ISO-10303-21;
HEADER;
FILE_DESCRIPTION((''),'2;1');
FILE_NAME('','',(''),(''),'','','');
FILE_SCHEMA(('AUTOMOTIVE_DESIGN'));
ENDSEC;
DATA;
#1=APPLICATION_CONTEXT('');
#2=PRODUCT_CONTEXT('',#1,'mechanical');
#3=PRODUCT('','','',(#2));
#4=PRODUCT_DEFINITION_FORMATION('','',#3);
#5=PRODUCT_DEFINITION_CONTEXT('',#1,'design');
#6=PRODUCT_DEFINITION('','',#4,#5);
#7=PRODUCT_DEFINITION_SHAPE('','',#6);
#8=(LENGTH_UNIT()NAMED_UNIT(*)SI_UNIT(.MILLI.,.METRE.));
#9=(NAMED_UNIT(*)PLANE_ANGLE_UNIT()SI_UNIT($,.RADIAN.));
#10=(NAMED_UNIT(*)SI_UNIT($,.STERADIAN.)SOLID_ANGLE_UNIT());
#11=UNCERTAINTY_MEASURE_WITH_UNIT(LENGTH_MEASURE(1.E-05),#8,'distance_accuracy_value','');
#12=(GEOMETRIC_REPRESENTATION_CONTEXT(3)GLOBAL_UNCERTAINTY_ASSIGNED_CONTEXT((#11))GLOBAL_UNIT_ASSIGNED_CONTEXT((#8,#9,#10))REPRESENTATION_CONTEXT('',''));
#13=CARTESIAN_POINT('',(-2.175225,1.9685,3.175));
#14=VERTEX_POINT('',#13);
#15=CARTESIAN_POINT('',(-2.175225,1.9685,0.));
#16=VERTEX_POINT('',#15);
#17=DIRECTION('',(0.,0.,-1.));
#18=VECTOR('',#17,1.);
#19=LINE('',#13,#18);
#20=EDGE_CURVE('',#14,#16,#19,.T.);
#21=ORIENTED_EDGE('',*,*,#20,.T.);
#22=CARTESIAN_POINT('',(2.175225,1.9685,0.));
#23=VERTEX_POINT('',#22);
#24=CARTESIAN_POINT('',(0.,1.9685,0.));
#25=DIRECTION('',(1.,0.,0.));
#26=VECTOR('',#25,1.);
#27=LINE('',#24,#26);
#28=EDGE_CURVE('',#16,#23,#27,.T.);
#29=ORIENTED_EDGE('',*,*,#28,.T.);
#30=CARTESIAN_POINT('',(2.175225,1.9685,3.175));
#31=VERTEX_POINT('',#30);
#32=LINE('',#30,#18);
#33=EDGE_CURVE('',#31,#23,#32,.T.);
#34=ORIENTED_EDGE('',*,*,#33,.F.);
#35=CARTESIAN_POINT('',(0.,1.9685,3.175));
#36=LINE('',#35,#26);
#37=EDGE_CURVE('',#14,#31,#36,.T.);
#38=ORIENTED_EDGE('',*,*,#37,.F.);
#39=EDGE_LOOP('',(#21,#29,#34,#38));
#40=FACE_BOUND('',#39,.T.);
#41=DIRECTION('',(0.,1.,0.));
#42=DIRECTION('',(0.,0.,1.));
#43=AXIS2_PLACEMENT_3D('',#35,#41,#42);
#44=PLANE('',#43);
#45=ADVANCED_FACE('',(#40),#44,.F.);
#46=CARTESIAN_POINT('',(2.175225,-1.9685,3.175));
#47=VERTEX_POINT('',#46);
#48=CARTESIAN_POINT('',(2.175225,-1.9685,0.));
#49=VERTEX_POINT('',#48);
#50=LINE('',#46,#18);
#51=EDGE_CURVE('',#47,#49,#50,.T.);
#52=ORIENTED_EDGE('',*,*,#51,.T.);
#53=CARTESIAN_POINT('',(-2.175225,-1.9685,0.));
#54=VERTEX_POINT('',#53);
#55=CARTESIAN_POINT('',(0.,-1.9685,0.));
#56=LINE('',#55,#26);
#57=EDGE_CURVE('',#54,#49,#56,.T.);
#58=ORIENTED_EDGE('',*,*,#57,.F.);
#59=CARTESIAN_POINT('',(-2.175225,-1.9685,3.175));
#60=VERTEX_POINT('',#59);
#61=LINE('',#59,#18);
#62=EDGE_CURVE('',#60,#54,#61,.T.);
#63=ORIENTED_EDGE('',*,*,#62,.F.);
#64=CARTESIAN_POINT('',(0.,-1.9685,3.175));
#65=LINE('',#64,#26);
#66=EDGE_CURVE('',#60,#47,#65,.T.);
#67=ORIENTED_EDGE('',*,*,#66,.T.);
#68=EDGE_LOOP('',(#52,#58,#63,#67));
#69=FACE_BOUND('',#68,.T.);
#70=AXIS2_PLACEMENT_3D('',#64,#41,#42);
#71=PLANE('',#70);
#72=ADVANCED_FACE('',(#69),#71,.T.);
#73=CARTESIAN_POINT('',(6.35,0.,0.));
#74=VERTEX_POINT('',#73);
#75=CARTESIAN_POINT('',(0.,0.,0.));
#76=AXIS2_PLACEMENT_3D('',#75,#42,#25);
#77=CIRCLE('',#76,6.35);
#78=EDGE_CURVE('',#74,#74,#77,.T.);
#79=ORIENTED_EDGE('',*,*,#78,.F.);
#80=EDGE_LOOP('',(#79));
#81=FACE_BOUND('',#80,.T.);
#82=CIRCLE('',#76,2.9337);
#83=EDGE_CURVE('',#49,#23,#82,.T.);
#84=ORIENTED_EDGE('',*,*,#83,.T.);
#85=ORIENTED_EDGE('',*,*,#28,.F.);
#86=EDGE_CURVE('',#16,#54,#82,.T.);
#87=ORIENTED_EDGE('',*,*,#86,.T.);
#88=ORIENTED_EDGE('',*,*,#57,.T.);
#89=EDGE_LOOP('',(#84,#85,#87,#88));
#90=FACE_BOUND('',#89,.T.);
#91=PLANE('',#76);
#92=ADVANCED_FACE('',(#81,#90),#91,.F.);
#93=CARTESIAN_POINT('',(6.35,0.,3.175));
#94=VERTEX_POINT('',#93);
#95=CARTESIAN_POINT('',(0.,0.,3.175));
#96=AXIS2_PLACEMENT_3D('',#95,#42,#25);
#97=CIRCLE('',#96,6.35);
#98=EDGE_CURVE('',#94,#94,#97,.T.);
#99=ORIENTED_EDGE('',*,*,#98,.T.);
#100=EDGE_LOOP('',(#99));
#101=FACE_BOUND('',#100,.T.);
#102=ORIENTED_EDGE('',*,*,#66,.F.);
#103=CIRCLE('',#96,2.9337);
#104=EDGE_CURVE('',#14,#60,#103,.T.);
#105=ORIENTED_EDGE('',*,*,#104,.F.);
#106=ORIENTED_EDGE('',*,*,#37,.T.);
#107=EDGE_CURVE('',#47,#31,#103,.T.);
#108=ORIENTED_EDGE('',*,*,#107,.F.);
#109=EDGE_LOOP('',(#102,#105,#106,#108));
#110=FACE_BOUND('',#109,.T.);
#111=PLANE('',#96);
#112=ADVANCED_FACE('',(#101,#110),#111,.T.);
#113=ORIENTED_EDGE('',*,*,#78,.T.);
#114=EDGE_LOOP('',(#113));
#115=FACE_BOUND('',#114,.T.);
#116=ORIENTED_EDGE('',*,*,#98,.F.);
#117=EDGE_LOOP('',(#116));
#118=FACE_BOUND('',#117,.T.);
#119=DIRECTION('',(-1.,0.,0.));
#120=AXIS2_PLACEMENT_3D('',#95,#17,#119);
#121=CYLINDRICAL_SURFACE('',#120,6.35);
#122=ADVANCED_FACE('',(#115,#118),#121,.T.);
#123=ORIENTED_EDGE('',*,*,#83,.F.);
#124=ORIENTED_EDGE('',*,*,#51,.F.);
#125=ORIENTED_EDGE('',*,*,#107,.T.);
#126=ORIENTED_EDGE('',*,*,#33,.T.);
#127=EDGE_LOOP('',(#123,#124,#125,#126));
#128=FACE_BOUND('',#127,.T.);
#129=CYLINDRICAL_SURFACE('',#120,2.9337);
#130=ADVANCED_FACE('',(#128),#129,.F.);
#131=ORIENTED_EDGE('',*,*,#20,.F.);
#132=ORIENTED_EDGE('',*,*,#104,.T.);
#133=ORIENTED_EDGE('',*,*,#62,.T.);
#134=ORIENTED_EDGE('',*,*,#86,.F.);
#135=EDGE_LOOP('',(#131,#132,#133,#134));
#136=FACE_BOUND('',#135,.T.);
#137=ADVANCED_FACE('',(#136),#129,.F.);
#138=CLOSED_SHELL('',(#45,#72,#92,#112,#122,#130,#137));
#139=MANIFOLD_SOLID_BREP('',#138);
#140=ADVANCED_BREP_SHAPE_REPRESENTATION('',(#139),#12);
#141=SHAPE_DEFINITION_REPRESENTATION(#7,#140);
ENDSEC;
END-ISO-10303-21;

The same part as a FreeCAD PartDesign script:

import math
import FreeCAD as App
import Part
import Sketcher
from FreeCAD import Vector
Q = App.Units.Quantity

doc = App.newDocument("Part")
body = doc.addObject("PartDesign::Body", "Body")

sketch1 = body.newObject("Sketcher::SketchObject", "Sketch")
sketch1.AttachmentSupport = (doc.getObject("XY_Plane"), [""])
sketch1.MapMode = "FlatFace"
sketch1.addGeometry(Part.Circle(Vector(0, 0, 0), Vector(0, 0, 1), 6.3), False)
sketch1.addGeometry(Part.ArcOfCircle(Part.Circle(Vector(0, 0, 0), Vector(0, 0, 1), 2.9), math.radians(138), math.radians(222)), False)
sketch1.addGeometry(Part.LineSegment(Vector(-2.2, 2, 0), Vector(2.2, 2, 0)), False)
sketch1.addGeometry(Part.ArcOfCircle(Part.Circle(Vector(0, 0, 0), Vector(0, 0, 1), 2.9), math.radians(-42), math.radians(42)), False)
sketch1.addGeometry(Part.LineSegment(Vector(2.2, -2, 0), Vector(-2.2, -2, 0)), False)
sketch1.addConstraint(Sketcher.Constraint("Coincident", 1, 1, 2, 1))
sketch1.addConstraint(Sketcher.Constraint("Coincident", 2, 2, 3, 2))
sketch1.addConstraint(Sketcher.Constraint("Coincident", 3, 1, 4, 1))
sketch1.addConstraint(Sketcher.Constraint("Coincident", 4, 2, 1, 2))
sketch1.addConstraint(Sketcher.Constraint("Horizontal", 2))
sketch1.addConstraint(Sketcher.Constraint("Horizontal", 4))
sketch1.addConstraint(Sketcher.Constraint("Coincident", 0, 3, -1, 1))
sketch1.addConstraint(Sketcher.Constraint("Coincident", 1, 3, -1, 1))
sketch1.addConstraint(Sketcher.Constraint("Coincident", 3, 3, -1, 1))
sketch1.addConstraint(Sketcher.Constraint("Equal", 1, 3))
sketch1.addConstraint(Sketcher.Constraint("Vertical", 2, 2, 3, 1))
sketch1.addConstraint(Sketcher.Constraint("Diameter", 0, Q("0.5 in")))
sketch1.addConstraint(Sketcher.Constraint("Radius", 1, Q("0.1155 in")))
sketch1.addConstraint(Sketcher.Constraint("DistanceY", 3, 1, 2, 2, Q("0.155 in")))
pad1 = body.newObject("PartDesign::Pad", "Pad")
pad1.Profile = sketch1
pad1.Length = Q("0.125 in")

doc.recompute()
